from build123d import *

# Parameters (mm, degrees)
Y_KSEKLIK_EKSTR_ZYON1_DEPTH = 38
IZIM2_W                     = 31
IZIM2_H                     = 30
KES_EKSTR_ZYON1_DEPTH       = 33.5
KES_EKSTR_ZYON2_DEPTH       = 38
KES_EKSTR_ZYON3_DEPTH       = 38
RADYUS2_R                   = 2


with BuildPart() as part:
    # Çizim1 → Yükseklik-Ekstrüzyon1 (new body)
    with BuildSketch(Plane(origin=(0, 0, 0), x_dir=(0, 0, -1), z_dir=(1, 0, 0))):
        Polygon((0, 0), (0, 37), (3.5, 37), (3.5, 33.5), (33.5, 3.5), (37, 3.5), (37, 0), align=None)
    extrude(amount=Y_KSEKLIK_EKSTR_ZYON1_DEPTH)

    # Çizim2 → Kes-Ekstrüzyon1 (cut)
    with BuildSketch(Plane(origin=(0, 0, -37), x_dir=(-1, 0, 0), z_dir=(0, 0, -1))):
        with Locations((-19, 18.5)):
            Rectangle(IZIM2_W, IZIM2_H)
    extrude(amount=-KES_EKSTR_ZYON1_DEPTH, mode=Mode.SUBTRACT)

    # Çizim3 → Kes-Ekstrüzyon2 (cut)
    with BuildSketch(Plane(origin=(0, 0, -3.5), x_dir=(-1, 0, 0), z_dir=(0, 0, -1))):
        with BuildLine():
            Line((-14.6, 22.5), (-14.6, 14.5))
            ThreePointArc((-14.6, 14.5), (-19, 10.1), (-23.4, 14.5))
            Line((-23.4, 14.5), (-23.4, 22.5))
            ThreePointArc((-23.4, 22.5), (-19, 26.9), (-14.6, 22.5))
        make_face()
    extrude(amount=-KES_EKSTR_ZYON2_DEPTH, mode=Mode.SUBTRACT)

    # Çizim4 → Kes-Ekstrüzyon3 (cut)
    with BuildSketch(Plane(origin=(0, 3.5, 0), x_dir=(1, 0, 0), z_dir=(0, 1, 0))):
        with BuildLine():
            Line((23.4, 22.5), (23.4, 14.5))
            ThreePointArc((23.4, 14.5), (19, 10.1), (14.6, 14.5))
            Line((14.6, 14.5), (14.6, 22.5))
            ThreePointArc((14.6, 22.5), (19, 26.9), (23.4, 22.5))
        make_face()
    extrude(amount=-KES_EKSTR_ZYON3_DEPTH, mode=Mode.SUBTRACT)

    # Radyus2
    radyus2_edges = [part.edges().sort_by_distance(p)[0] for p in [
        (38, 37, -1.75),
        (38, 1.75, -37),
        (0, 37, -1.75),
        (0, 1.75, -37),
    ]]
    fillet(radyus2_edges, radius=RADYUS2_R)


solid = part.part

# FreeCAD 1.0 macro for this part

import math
import FreeCAD as App
import Part
import Sketcher


def edges_at(feature, points):
    """Names of the edges that pass closest to the given points."""
    edges = feature.Shape.Edges
    near = lambda p: min(range(len(edges)), key=lambda i: edges[i].distToShape(Part.Vertex(*p))[0])
    return sorted({f"Edge{near(p) + 1}" for p in points})


def add_polygon(sketch, points):
    """Adds a closed chain of lines whose ends are joined by coincident constraints."""
    first, n = sketch.GeometryCount, len(points)
    for a, b in zip(points, points[1:] + points[:1]):
        sketch.addGeometry(Part.LineSegment(App.Vector(*a, 0), App.Vector(*b, 0)), False)
    for i in range(n):
        sketch.addConstraint(Sketcher.Constraint("Coincident", first + i, 2, first + (i + 1) % n, 1))

doc = App.newDocument("Part")
params = doc.addObject("Spreadsheet::Sheet", "Params")
for row, (alias, value) in enumerate([
    ("sketch1_width", "37 mm"),
    ("sketch1_width2", "3.5 mm"),
    ("pad1_length", "38 mm"),
    ("sketch2_width", "31 mm"),
    ("sketch2_height", "30 mm"),
    ("pocket1_length", "33.5 mm"),
    ("sketch3_radius", "4.4 mm"),
    ("sketch3_height", "8 mm"),
    ("pocket2_length", "38 mm"),
    ("sketch4_radius", "4.4 mm"),
    ("sketch4_height", "8 mm"),
    ("pocket3_length", "38 mm"),
    ("fillet_radius", "2 mm"),
], start=1):
    params.set(f"A{row}", alias)
    params.set(f"B{row}", "=" + value)
    params.setAlias(f"B{row}", alias)

body = doc.addObject("PartDesign::Body", "Body")

# Sketch on YZ plane
sketch1 = doc.addObject("Sketcher::SketchObject", "Sketch")
body.addObject(sketch1)
sketch1.AttachmentSupport = (doc.YZ_Plane, [""])
sketch1.MapMode = "FlatFace"
add_polygon(sketch1, [(37, 0), (0, 0), (0, -37), (3.5, -37), (3.5, -33.5), (33.5, -3.5), (37, -3.5)])  # lines 0-6
sketch1.addConstraint([
    Sketcher.Constraint("Horizontal", 0),
    Sketcher.Constraint("Vertical", 1),
    Sketcher.Constraint("Horizontal", 2),
    Sketcher.Constraint("Vertical", 3),
    Sketcher.Constraint("Horizontal", 5),
    Sketcher.Constraint("Vertical", 6),
    Sketcher.Constraint("Coincident", 0, 2, -1, 1),
    Sketcher.Constraint("Equal", 2, 5),
    Sketcher.Constraint("Equal", 0, 1),
    Sketcher.Constraint("Equal", 5, 3),
    Sketcher.Constraint("Equal", 3, 6),
    Sketcher.Constraint("DistanceX", 0, 2, 0, 1, 37.0),
    Sketcher.Constraint("DistanceX", 2, 1, 2, 2, 3.5),
])
sketch1.setExpression("Constraints[18]", "Params.sketch1_width")
sketch1.setExpression("Constraints[19]", "Params.sketch1_width2")
pad1 = doc.addObject("PartDesign::Pad", "Pad")
body.addObject(pad1)
pad1.Profile = sketch1
pad1.setExpression("Length", "Params.pad1_length")

# Sketch on XY plane
sketch2 = doc.addObject("Sketcher::SketchObject", "Sketch001")
body.addObject(sketch2)
sketch2.AttachmentSupport = (doc.XY_Plane, [""])
sketch2.MapMode = "FlatFace"
sketch2.AttachmentOffset = App.Placement(App.Vector(0, 0, -37), App.Rotation())
add_polygon(sketch2, [(34.5, 33.5), (34.5, 3.5), (3.5, 3.5), (3.5, 33.5)])  # lines 0-3
sketch2.addConstraint([
    Sketcher.Constraint("Vertical", 0),
    Sketcher.Constraint("Horizontal", 1),
    Sketcher.Constraint("Vertical", 2),
    Sketcher.Constraint("Horizontal", 3),
    Sketcher.Constraint("DistanceX", 1, 2, 1, 1, 31.0),
    Sketcher.Constraint("DistanceY", 0, 2, 0, 1, 30.0),
    Sketcher.Constraint("DistanceX", -1, 1, 0, 2, 34.5),
    Sketcher.Constraint("DistanceY", -1, 1, 0, 2, 3.5),
])
sketch2.setExpression("Constraints[8]", "Params.sketch2_width")
sketch2.setExpression("Constraints[9]", "Params.sketch2_height")
pocket1 = doc.addObject("PartDesign::Pocket", "Pocket")
body.addObject(pocket1)
pocket1.Profile = sketch2
pocket1.setExpression("Length", "Params.pocket1_length")
pocket1.Reversed = True

# Sketch on XY plane
sketch3 = doc.addObject("Sketcher::SketchObject", "Sketch002")
body.addObject(sketch3)
sketch3.AttachmentSupport = (doc.XY_Plane, [""])
sketch3.MapMode = "FlatFace"
sketch3.AttachmentOffset = App.Placement(App.Vector(0, 0, -3.5), App.Rotation())
sketch3.addGeometry([
    Part.LineSegment(App.Vector(14.6, 14.5, 0), App.Vector(14.6, 22.5, 0)),
    Part.ArcOfCircle(Part.Circle(App.Vector(19, 22.5, 0), App.Vector(0, 0, 1), 4.4), math.radians(0), math.radians(180)),
    Part.LineSegment(App.Vector(23.4, 22.5, 0), App.Vector(23.4, 14.5, 0)),
    Part.ArcOfCircle(Part.Circle(App.Vector(19, 14.5, 0), App.Vector(0, 0, 1), 4.4), math.radians(180), math.radians(360)),
], False)
sketch3.addConstraint([
    Sketcher.Constraint("Tangent", 0, 2, 1, 2),
    Sketcher.Constraint("Tangent", 1, 1, 2, 1),
    Sketcher.Constraint("Tangent", 2, 2, 3, 2),
    Sketcher.Constraint("Tangent", 3, 1, 0, 1),
    Sketcher.Constraint("Vertical", 0),
    Sketcher.Constraint("Vertical", 2),
    Sketcher.Constraint("Radius", 1, 4.4),
    Sketcher.Constraint("DistanceY", 0, 1, 0, 2, 8.0),
    Sketcher.Constraint("DistanceX", -1, 1, 1, 3, 19.0),
    Sketcher.Constraint("DistanceY", -1, 1, 1, 3, 22.5),
])
sketch3.setExpression("Constraints[6]", "Params.sketch3_radius")
sketch3.setExpression("Constraints[7]", "Params.sketch3_height")
pocket2 = doc.addObject("PartDesign::Pocket", "Pocket001")
body.addObject(pocket2)
pocket2.Profile = sketch3
pocket2.setExpression("Length", "Params.pocket2_length")
pocket2.Reversed = True

# Sketch on XZ plane
sketch4 = doc.addObject("Sketcher::SketchObject", "Sketch003")
body.addObject(sketch4)
sketch4.AttachmentSupport = (doc.XZ_Plane, [""])
sketch4.MapMode = "FlatFace"
sketch4.AttachmentOffset = App.Placement(App.Vector(0, 0, -3.5), App.Rotation())
sketch4.addGeometry([
    Part.LineSegment(App.Vector(23.4, -14.5, 0), App.Vector(23.4, -22.5, 0)),
    Part.ArcOfCircle(Part.Circle(App.Vector(19, -22.5, 0), App.Vector(0, 0, 1), 4.4), math.radians(180), math.radians(360)),
    Part.LineSegment(App.Vector(14.6, -22.5, 0), App.Vector(14.6, -14.5, 0)),
    Part.ArcOfCircle(Part.Circle(App.Vector(19, -14.5, 0), App.Vector(0, 0, 1), 4.4), math.radians(0), math.radians(180)),
], False)
sketch4.addConstraint([
    Sketcher.Constraint("Tangent", 0, 2, 1, 2),
    Sketcher.Constraint("Tangent", 1, 1, 2, 1),
    Sketcher.Constraint("Tangent", 2, 2, 3, 2),
    Sketcher.Constraint("Tangent", 3, 1, 0, 1),
    Sketcher.Constraint("Vertical", 0),
    Sketcher.Constraint("Vertical", 2),
    Sketcher.Constraint("Radius", 1, 4.4),
    Sketcher.Constraint("DistanceY", 0, 2, 0, 1, 8.0),
    Sketcher.Constraint("DistanceX", -1, 1, 1, 3, 19.0),
    Sketcher.Constraint("DistanceY", 1, 3, -1, 1, 22.5),
])
sketch4.setExpression("Constraints[6]", "Params.sketch4_radius")
sketch4.setExpression("Constraints[7]", "Params.sketch4_height")
pocket3 = doc.addObject("PartDesign::Pocket", "Pocket002")
body.addObject(pocket3)
pocket3.Profile = sketch4
pocket3.setExpression("Length", "Params.pocket3_length")
pocket3.Reversed = True
doc.recompute()

fillet = doc.addObject("PartDesign::Fillet", "Fillet")
body.addObject(fillet)
fillet.Base = (pocket3, edges_at(pocket3, [
    (38, 37, -1.75),
    (38, 1.75, -37),
    (0, 37, -1.75),
    (0, 1.75, -37),
]))
fillet.setExpression("Radius", "Params.fillet_radius")

doc.recompute()
